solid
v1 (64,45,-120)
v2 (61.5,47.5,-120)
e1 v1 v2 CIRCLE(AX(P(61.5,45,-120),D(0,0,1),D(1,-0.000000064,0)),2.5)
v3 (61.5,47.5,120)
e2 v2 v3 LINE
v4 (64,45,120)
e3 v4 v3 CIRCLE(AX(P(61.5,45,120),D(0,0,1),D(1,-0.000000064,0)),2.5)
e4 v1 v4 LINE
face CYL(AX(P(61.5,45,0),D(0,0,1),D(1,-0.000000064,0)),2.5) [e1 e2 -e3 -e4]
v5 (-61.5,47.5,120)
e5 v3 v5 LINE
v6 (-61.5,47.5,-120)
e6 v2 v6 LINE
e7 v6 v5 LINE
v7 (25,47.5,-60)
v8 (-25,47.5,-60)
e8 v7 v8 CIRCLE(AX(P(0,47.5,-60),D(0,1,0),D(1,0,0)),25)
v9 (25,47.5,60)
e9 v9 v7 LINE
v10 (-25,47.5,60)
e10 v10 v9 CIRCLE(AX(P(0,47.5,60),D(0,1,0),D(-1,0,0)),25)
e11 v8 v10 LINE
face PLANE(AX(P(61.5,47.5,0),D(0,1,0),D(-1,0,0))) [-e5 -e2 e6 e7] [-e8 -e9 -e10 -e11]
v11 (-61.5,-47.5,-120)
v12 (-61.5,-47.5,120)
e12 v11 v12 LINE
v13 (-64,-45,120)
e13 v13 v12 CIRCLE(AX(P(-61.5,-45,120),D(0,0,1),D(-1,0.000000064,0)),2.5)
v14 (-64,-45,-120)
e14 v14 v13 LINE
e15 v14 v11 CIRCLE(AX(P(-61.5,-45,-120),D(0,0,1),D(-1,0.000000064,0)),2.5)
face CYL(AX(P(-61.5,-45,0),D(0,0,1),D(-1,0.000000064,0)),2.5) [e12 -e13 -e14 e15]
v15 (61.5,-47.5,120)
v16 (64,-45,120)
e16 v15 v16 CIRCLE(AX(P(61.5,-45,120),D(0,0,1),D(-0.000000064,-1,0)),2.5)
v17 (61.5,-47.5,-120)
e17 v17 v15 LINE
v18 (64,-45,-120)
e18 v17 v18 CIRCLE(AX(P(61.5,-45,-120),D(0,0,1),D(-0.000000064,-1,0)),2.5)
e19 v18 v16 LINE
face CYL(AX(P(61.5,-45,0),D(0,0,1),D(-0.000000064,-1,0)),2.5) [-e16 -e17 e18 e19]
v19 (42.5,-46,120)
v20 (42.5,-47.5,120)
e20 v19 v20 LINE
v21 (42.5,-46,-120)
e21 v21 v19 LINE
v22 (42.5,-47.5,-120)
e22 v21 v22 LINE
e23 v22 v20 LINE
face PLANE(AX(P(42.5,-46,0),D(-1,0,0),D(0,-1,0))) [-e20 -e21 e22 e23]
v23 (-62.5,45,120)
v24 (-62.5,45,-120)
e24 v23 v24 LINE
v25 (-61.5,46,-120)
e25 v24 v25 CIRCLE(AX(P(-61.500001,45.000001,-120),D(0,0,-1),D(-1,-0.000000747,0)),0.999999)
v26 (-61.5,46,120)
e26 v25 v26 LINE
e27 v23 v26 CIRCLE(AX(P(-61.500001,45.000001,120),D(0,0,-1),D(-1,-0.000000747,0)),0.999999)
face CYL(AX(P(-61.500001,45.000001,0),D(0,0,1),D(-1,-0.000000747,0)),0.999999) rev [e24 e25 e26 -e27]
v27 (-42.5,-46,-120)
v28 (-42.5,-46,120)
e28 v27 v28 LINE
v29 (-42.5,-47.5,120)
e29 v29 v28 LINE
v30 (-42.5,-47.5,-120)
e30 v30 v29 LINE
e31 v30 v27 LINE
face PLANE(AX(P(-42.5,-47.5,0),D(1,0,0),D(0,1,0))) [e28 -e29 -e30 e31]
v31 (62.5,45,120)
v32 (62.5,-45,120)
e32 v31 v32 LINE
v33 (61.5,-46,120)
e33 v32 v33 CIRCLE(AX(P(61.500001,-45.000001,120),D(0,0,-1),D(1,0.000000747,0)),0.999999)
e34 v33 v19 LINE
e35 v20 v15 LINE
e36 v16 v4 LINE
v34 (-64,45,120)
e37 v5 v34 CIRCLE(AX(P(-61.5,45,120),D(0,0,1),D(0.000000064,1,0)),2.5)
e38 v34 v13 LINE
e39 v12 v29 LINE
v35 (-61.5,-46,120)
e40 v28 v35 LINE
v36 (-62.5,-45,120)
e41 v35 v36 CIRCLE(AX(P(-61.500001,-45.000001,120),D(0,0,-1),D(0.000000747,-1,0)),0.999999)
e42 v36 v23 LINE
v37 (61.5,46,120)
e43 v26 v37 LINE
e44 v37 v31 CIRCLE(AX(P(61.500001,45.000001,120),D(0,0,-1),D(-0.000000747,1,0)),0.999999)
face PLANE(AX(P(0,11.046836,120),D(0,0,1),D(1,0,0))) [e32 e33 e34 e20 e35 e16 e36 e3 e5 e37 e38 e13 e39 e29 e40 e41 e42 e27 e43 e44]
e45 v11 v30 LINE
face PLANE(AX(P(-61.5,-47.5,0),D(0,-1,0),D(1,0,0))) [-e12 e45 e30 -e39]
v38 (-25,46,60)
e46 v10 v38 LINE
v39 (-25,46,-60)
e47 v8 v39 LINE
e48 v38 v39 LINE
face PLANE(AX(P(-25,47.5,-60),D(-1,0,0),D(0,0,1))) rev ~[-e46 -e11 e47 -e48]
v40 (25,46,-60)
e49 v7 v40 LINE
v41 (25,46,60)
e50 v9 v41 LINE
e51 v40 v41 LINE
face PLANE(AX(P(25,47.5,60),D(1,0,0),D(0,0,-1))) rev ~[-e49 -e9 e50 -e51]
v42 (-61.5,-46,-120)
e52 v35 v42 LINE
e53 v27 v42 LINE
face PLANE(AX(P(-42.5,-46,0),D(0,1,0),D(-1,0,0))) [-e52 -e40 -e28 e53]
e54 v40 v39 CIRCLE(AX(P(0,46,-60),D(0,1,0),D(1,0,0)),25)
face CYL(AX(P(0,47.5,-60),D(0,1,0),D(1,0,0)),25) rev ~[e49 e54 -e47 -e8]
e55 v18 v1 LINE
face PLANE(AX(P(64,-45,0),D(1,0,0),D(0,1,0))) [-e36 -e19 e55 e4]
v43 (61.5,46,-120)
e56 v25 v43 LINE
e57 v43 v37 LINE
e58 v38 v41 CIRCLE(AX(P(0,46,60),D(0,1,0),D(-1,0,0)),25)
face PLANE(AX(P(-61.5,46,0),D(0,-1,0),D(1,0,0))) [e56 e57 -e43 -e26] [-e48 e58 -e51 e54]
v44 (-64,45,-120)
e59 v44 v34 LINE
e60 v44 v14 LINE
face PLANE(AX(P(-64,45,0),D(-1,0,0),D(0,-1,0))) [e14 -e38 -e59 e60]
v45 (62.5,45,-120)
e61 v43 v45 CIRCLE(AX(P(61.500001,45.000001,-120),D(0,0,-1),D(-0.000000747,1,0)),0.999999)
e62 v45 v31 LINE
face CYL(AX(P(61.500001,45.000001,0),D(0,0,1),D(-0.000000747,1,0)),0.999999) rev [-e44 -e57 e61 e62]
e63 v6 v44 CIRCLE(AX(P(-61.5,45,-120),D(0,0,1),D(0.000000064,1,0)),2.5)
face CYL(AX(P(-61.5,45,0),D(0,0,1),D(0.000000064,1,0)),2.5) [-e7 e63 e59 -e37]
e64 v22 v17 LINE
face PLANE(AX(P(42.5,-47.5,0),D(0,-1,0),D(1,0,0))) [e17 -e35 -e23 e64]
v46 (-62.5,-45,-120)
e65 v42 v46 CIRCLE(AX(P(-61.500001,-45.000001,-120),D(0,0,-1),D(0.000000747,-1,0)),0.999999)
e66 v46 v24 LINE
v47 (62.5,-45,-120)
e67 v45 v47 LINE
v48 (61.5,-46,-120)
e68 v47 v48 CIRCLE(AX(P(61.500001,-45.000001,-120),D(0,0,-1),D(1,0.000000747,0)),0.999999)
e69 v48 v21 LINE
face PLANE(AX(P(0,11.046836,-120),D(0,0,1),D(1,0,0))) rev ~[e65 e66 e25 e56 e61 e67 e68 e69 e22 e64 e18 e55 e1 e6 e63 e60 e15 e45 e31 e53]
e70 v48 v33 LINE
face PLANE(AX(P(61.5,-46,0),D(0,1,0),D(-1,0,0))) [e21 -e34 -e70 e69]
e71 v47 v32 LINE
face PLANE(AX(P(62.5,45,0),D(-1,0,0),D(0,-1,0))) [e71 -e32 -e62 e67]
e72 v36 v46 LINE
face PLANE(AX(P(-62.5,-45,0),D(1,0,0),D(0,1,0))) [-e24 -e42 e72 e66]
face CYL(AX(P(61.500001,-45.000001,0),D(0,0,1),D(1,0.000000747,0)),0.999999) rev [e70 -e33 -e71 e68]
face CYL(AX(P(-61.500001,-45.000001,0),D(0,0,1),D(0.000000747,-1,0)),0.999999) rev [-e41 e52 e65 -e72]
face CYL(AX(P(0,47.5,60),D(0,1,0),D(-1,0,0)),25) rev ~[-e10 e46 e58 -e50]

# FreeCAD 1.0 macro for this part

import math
import FreeCAD as App
import Part
import Sketcher
from FreeCAD import Vector

doc = App.newDocument("Part")
body = doc.addObject("PartDesign::Body", "Body")

# Sketch on XY plane
sketch1 = doc.addObject("Sketcher::SketchObject", "Sketch")
body.addObject(sketch1)
sketch1.AttachmentSupport = (doc.XY_Plane, [""])
sketch1.MapMode = "FlatFace"
sketch1.addGeometry([
    Part.ArcOfCircle(Part.Circle(Vector(-61.5, 45, 0), Vector(0, 0, 1), 1), math.radians(90), math.radians(180)),  # 0
    Part.LineSegment(Vector(-61.5, 46, 0), Vector(61.5, 46, 0)),  # 1
    Part.ArcOfCircle(Part.Circle(Vector(61.5, 45, 0), Vector(0, 0, 1), 1), math.radians(0), math.radians(90)),  # 2
    Part.LineSegment(Vector(62.5, 45, 0), Vector(62.5, -45, 0)),  # 3
    Part.ArcOfCircle(Part.Circle(Vector(61.5, -45, 0), Vector(0, 0, 1), 1), math.radians(-90), math.radians(0)),  # 4
    Part.LineSegment(Vector(61.5, -46, 0), Vector(42.5, -46, 0)),  # 5
    Part.LineSegment(Vector(42.5, -46, 0), Vector(42.5, -47.5, 0)),  # 6
    Part.LineSegment(Vector(42.5, -47.5, 0), Vector(61.5, -47.5, 0)),  # 7
    Part.ArcOfCircle(Part.Circle(Vector(61.5, -45, 0), Vector(0, 0, 1), 2.5), math.radians(-90), math.radians(0)),  # 8
    Part.LineSegment(Vector(64, -45, 0), Vector(64, 45, 0)),  # 9
    Part.ArcOfCircle(Part.Circle(Vector(61.5, 45, 0), Vector(0, 0, 1), 2.5), math.radians(0), math.radians(90)),  # 10
    Part.LineSegment(Vector(61.5, 47.5, 0), Vector(-61.5, 47.5, 0)),  # 11
    Part.ArcOfCircle(Part.Circle(Vector(-61.5, 45, 0), Vector(0, 0, 1), 2.5), math.radians(90), math.radians(180)),  # 12
    Part.LineSegment(Vector(-64, 45, 0), Vector(-64, -45, 0)),  # 13
    Part.ArcOfCircle(Part.Circle(Vector(-61.5, -45, 0), Vector(0, 0, 1), 2.5), math.radians(180), math.radians(270)),  # 14
    Part.LineSegment(Vector(-61.5, -47.5, 0), Vector(-42.5, -47.5, 0)),  # 15
    Part.LineSegment(Vector(-42.5, -47.5, 0), Vector(-42.5, -46, 0)),  # 16
    Part.LineSegment(Vector(-42.5, -46, 0), Vector(-61.5, -46, 0)),  # 17
    Part.ArcOfCircle(Part.Circle(Vector(-61.5, -45, 0), Vector(0, 0, 1), 1), math.radians(180), math.radians(270)),  # 18
    Part.LineSegment(Vector(-62.5, -45, 0), Vector(-62.5, 45, 0)),  # 19
], False)
sketch1.addConstraint([
    Sketcher.Constraint("Tangent", 0, 1, 1, 1),
    Sketcher.Constraint("Tangent", 1, 2, 2, 2),
    Sketcher.Constraint("Tangent", 2, 1, 3, 1),
    Sketcher.Constraint("Tangent", 3, 2, 4, 2),
    Sketcher.Constraint("Tangent", 4, 1, 5, 1),
    Sketcher.Constraint("Coincident", 5, 2, 6, 1),
    Sketcher.Constraint("Coincident", 6, 2, 7, 1),
    Sketcher.Constraint("Tangent", 7, 2, 8, 1),
    Sketcher.Constraint("Tangent", 8, 2, 9, 1),
    Sketcher.Constraint("Tangent", 9, 2, 10, 1),
    Sketcher.Constraint("Tangent", 10, 2, 11, 1),
    Sketcher.Constraint("Tangent", 11, 2, 12, 1),
    Sketcher.Constraint("Tangent", 12, 2, 13, 1),
    Sketcher.Constraint("Tangent", 13, 2, 14, 1),
    Sketcher.Constraint("Tangent", 14, 2, 15, 1),
    Sketcher.Constraint("Coincident", 15, 2, 16, 1),
    Sketcher.Constraint("Coincident", 16, 2, 17, 1),
    Sketcher.Constraint("Tangent", 17, 2, 18, 2),
    Sketcher.Constraint("Tangent", 18, 1, 19, 1),
    Sketcher.Constraint("Tangent", 19, 2, 0, 2),
    Sketcher.Constraint("Horizontal", 1),
    Sketcher.Constraint("Vertical", 3),
    Sketcher.Constraint("Horizontal", 5),
    Sketcher.Constraint("Vertical", 6),
    Sketcher.Constraint("Horizontal", 7),
    Sketcher.Constraint("Vertical", 9),
    Sketcher.Constraint("Horizontal", 11),
    Sketcher.Constraint("Vertical", 13),
    Sketcher.Constraint("Horizontal", 15),
    Sketcher.Constraint("Vertical", 16),
    Sketcher.Constraint("Horizontal", 17),
    Sketcher.Constraint("Vertical", 19),
    Sketcher.Constraint("Coincident", 8, 3, 4, 3),
    Sketcher.Constraint("Coincident", 10, 3, 2, 3),
    Sketcher.Constraint("Coincident", 12, 3, 0, 3),
    Sketcher.Constraint("Coincident", 18, 3, 14, 3),
    Sketcher.Constraint("Equal", 0, 2),
    Sketcher.Constraint("Equal", 2, 4),
    Sketcher.Constraint("Equal", 12, 14),
    Sketcher.Constraint("Symmetric", 0, 3, 4, 3, -1, 1),
    Sketcher.Constraint("Symmetric", 6, 2, 15, 2, -2),
    Sketcher.Constraint("Radius", 0, 0.999999),
    Sketcher.Constraint("Radius", 8, 2.5),
    Sketcher.Constraint("DistanceX", 1, 1, 1, 2, 123.0),
    Sketcher.Constraint("DistanceX", 5, 2, 5, 1, 19.0),
    Sketcher.Constraint("DistanceY", 3, 2, 3, 1, 90.0),
])
pad1 = doc.addObject("PartDesign::Pad", "Pad")
body.addObject(pad1)
pad1.Profile = sketch1
pad1.Length = 240
pad1.Midplane = True

# Sketch on XZ plane
sketch2 = doc.addObject("Sketcher::SketchObject", "Sketch001")
body.addObject(sketch2)
sketch2.AttachmentSupport = (doc.XZ_Plane, [""])
sketch2.MapMode = "FlatFace"
sketch2.AttachmentOffset = App.Placement(Vector(0, 0, -47.5), App.Rotation())
sketch2.addGeometry([
    Part.LineSegment(Vector(25, 60, 0), Vector(25, -60, 0)),
    Part.ArcOfCircle(Part.Circle(Vector(0, -60, 0), Vector(0, 0, 1), 25), math.radians(180), math.radians(360)),
    Part.LineSegment(Vector(-25, -60, 0), Vector(-25, 60, 0)),
    Part.ArcOfCircle(Part.Circle(Vector(0, 60, 0), Vector(0, 0, 1), 25), math.radians(0), math.radians(180)),
], False)
sketch2.addConstraint([
    Sketcher.Constraint("Tangent", 0, 2, 1, 2),
    Sketcher.Constraint("Tangent", 1, 1, 2, 1),
    Sketcher.Constraint("Tangent", 2, 2, 3, 2),
    Sketcher.Constraint("Tangent", 3, 1, 0, 1),
    Sketcher.Constraint("Vertical", 0),
    Sketcher.Constraint("Vertical", 2),
    Sketcher.Constraint("Symmetric", 1, 3, 3, 3, -1, 1),
    Sketcher.Constraint("Radius", 1, 25.0),
    Sketcher.Constraint("DistanceY", 0, 2, 0, 1, 120.0),
])
pocket1 = doc.addObject("PartDesign::Pocket", "Pocket")
body.addObject(pocket1)
pocket1.Profile = sketch2
pocket1.Length = 25
pocket1.Reversed = True

doc.recompute()
